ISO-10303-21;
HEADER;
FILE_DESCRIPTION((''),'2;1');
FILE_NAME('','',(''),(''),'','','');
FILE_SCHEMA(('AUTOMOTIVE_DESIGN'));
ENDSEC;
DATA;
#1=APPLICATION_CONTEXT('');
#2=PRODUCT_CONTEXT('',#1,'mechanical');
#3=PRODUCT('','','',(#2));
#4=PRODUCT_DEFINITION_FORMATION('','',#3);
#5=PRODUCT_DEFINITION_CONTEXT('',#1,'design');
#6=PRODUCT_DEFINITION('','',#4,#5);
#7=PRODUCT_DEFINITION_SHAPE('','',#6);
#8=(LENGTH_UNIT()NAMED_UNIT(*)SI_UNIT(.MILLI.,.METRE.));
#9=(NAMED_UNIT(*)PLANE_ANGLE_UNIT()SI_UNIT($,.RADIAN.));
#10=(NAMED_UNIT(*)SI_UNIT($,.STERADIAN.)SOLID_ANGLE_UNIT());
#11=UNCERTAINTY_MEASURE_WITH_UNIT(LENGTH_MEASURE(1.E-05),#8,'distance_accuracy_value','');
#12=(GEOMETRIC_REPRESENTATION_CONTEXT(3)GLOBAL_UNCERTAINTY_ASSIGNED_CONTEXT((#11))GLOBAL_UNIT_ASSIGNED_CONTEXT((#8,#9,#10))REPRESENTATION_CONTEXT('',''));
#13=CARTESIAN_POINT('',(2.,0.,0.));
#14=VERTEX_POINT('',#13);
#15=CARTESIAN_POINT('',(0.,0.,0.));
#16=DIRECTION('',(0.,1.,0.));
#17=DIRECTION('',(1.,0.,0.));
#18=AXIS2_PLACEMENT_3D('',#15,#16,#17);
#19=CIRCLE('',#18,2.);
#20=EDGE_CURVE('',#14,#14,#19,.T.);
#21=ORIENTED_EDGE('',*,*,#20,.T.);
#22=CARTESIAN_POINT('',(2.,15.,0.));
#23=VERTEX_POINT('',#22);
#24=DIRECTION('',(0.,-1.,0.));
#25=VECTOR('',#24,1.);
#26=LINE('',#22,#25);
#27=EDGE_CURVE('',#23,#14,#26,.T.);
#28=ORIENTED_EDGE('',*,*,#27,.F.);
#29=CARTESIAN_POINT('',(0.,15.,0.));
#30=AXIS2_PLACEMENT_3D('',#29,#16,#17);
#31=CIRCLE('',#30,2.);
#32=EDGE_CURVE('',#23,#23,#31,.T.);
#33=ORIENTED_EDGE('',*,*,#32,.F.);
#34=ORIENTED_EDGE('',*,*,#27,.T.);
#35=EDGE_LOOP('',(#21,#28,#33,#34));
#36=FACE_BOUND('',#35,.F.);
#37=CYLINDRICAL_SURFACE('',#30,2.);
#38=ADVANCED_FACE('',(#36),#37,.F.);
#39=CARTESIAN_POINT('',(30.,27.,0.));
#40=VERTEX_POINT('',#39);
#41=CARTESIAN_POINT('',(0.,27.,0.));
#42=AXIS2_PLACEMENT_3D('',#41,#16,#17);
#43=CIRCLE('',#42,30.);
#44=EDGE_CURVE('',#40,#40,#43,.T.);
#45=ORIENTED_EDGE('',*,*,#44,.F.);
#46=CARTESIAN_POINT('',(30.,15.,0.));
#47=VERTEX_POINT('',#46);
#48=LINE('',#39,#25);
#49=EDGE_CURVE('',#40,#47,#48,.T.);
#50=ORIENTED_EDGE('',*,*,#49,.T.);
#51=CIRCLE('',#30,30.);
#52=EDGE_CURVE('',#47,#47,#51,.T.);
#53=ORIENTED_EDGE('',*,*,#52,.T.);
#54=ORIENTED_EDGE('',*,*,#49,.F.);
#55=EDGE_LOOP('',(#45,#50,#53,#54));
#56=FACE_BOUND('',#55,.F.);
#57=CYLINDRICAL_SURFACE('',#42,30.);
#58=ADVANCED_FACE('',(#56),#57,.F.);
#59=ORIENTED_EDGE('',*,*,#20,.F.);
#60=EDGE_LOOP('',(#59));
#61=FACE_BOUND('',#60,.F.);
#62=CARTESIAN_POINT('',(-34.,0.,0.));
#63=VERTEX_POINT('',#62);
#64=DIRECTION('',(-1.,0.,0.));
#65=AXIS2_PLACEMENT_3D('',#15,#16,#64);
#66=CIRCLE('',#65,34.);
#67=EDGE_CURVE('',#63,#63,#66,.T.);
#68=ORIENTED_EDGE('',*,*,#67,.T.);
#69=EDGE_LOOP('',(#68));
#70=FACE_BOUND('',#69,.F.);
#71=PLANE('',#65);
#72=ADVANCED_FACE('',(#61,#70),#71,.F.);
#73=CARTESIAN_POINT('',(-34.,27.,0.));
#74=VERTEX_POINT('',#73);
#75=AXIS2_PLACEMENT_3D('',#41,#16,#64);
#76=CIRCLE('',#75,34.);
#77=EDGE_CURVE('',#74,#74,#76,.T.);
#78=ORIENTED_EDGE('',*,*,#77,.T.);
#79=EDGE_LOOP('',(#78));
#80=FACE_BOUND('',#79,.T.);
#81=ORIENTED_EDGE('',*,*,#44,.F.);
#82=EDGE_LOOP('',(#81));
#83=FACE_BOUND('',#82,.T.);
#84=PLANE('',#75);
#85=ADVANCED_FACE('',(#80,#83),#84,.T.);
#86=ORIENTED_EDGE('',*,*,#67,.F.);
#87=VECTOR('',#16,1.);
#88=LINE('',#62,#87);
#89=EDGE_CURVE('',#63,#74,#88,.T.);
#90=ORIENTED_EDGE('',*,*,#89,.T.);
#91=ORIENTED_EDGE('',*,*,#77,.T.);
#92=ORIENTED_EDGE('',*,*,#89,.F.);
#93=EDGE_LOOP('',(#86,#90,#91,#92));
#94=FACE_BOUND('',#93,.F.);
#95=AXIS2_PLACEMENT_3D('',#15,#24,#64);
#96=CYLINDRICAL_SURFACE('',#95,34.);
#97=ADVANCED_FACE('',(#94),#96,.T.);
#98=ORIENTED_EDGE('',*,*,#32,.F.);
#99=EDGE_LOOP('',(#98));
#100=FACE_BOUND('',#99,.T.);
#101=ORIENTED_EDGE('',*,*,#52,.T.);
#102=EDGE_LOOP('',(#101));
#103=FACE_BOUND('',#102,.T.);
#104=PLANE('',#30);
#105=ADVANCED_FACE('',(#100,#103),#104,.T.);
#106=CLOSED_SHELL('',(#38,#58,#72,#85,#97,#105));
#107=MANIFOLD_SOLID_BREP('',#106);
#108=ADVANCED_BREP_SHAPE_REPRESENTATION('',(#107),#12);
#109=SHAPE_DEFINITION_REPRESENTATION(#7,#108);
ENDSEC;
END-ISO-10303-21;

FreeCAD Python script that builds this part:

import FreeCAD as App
import Part
import Sketcher
from FreeCAD import Vector

doc = App.newDocument("Part")
body = doc.addObject("PartDesign::Body", "Body")

# Sketch on XZ plane
sketch1 = body.newObject("Sketcher::SketchObject", "Sketch")
sketch1.AttachmentSupport = (doc.getObject("XZ_Plane"), [""])
sketch1.MapMode = "FlatFace"
sketch1.addGeometry(Part.Circle(Vector(0, 0, 0), Vector(0, 0, 1), 34), False)
sketch1.addConstraint([
    Sketcher.Constraint("Coincident", 0, 3, -1, 1),
    Sketcher.Constraint("Diameter", 0, 68.0),
])
pad1 = body.newObject("PartDesign::Pad", "Pad")
pad1.Profile = sketch1
pad1.Length = 27
pad1.Reversed = True

# Sketch on XZ plane
sketch2 = body.newObject("Sketcher::SketchObject", "Sketch001")
sketch2.AttachmentSupport = (doc.getObject("XZ_Plane"), [""])
sketch2.MapMode = "FlatFace"
sketch2.AttachmentOffset = App.Placement(Vector(0, 0, -27), App.Rotation())
sketch2.addGeometry(Part.Circle(Vector(0, 0, 0), Vector(0, 0, 1), 30), False)
sketch2.addConstraint([
    Sketcher.Constraint("Coincident", 0, 3, -1, 1),
    Sketcher.Constraint("Diameter", 0, 60.0),
])
pocket1 = body.newObject("PartDesign::Pocket", "Pocket")
pocket1.Profile = sketch2
pocket1.Length = 12
pocket1.Reversed = True

# Sketch on XZ plane
sketch3 = body.newObject("Sketcher::SketchObject", "Sketch002")
sketch3.AttachmentSupport = (doc.getObject("XZ_Plane"), [""])
sketch3.MapMode = "FlatFace"
sketch3.AttachmentOffset = App.Placement(Vector(0, 0, -15), App.Rotation())
sketch3.addGeometry(Part.Circle(Vector(0, 0, 0), Vector(0, 0, 1), 2), False)
sketch3.addConstraint([
    Sketcher.Constraint("Coincident", 0, 3, -1, 1),
    Sketcher.Constraint("Diameter", 0, 4.0),
])
pocket2 = body.newObject("PartDesign::Pocket", "Pocket001")
pocket2.Profile = sketch3
pocket2.Type = "ThroughAll"
pocket2.Reversed = True

doc.recompute()
